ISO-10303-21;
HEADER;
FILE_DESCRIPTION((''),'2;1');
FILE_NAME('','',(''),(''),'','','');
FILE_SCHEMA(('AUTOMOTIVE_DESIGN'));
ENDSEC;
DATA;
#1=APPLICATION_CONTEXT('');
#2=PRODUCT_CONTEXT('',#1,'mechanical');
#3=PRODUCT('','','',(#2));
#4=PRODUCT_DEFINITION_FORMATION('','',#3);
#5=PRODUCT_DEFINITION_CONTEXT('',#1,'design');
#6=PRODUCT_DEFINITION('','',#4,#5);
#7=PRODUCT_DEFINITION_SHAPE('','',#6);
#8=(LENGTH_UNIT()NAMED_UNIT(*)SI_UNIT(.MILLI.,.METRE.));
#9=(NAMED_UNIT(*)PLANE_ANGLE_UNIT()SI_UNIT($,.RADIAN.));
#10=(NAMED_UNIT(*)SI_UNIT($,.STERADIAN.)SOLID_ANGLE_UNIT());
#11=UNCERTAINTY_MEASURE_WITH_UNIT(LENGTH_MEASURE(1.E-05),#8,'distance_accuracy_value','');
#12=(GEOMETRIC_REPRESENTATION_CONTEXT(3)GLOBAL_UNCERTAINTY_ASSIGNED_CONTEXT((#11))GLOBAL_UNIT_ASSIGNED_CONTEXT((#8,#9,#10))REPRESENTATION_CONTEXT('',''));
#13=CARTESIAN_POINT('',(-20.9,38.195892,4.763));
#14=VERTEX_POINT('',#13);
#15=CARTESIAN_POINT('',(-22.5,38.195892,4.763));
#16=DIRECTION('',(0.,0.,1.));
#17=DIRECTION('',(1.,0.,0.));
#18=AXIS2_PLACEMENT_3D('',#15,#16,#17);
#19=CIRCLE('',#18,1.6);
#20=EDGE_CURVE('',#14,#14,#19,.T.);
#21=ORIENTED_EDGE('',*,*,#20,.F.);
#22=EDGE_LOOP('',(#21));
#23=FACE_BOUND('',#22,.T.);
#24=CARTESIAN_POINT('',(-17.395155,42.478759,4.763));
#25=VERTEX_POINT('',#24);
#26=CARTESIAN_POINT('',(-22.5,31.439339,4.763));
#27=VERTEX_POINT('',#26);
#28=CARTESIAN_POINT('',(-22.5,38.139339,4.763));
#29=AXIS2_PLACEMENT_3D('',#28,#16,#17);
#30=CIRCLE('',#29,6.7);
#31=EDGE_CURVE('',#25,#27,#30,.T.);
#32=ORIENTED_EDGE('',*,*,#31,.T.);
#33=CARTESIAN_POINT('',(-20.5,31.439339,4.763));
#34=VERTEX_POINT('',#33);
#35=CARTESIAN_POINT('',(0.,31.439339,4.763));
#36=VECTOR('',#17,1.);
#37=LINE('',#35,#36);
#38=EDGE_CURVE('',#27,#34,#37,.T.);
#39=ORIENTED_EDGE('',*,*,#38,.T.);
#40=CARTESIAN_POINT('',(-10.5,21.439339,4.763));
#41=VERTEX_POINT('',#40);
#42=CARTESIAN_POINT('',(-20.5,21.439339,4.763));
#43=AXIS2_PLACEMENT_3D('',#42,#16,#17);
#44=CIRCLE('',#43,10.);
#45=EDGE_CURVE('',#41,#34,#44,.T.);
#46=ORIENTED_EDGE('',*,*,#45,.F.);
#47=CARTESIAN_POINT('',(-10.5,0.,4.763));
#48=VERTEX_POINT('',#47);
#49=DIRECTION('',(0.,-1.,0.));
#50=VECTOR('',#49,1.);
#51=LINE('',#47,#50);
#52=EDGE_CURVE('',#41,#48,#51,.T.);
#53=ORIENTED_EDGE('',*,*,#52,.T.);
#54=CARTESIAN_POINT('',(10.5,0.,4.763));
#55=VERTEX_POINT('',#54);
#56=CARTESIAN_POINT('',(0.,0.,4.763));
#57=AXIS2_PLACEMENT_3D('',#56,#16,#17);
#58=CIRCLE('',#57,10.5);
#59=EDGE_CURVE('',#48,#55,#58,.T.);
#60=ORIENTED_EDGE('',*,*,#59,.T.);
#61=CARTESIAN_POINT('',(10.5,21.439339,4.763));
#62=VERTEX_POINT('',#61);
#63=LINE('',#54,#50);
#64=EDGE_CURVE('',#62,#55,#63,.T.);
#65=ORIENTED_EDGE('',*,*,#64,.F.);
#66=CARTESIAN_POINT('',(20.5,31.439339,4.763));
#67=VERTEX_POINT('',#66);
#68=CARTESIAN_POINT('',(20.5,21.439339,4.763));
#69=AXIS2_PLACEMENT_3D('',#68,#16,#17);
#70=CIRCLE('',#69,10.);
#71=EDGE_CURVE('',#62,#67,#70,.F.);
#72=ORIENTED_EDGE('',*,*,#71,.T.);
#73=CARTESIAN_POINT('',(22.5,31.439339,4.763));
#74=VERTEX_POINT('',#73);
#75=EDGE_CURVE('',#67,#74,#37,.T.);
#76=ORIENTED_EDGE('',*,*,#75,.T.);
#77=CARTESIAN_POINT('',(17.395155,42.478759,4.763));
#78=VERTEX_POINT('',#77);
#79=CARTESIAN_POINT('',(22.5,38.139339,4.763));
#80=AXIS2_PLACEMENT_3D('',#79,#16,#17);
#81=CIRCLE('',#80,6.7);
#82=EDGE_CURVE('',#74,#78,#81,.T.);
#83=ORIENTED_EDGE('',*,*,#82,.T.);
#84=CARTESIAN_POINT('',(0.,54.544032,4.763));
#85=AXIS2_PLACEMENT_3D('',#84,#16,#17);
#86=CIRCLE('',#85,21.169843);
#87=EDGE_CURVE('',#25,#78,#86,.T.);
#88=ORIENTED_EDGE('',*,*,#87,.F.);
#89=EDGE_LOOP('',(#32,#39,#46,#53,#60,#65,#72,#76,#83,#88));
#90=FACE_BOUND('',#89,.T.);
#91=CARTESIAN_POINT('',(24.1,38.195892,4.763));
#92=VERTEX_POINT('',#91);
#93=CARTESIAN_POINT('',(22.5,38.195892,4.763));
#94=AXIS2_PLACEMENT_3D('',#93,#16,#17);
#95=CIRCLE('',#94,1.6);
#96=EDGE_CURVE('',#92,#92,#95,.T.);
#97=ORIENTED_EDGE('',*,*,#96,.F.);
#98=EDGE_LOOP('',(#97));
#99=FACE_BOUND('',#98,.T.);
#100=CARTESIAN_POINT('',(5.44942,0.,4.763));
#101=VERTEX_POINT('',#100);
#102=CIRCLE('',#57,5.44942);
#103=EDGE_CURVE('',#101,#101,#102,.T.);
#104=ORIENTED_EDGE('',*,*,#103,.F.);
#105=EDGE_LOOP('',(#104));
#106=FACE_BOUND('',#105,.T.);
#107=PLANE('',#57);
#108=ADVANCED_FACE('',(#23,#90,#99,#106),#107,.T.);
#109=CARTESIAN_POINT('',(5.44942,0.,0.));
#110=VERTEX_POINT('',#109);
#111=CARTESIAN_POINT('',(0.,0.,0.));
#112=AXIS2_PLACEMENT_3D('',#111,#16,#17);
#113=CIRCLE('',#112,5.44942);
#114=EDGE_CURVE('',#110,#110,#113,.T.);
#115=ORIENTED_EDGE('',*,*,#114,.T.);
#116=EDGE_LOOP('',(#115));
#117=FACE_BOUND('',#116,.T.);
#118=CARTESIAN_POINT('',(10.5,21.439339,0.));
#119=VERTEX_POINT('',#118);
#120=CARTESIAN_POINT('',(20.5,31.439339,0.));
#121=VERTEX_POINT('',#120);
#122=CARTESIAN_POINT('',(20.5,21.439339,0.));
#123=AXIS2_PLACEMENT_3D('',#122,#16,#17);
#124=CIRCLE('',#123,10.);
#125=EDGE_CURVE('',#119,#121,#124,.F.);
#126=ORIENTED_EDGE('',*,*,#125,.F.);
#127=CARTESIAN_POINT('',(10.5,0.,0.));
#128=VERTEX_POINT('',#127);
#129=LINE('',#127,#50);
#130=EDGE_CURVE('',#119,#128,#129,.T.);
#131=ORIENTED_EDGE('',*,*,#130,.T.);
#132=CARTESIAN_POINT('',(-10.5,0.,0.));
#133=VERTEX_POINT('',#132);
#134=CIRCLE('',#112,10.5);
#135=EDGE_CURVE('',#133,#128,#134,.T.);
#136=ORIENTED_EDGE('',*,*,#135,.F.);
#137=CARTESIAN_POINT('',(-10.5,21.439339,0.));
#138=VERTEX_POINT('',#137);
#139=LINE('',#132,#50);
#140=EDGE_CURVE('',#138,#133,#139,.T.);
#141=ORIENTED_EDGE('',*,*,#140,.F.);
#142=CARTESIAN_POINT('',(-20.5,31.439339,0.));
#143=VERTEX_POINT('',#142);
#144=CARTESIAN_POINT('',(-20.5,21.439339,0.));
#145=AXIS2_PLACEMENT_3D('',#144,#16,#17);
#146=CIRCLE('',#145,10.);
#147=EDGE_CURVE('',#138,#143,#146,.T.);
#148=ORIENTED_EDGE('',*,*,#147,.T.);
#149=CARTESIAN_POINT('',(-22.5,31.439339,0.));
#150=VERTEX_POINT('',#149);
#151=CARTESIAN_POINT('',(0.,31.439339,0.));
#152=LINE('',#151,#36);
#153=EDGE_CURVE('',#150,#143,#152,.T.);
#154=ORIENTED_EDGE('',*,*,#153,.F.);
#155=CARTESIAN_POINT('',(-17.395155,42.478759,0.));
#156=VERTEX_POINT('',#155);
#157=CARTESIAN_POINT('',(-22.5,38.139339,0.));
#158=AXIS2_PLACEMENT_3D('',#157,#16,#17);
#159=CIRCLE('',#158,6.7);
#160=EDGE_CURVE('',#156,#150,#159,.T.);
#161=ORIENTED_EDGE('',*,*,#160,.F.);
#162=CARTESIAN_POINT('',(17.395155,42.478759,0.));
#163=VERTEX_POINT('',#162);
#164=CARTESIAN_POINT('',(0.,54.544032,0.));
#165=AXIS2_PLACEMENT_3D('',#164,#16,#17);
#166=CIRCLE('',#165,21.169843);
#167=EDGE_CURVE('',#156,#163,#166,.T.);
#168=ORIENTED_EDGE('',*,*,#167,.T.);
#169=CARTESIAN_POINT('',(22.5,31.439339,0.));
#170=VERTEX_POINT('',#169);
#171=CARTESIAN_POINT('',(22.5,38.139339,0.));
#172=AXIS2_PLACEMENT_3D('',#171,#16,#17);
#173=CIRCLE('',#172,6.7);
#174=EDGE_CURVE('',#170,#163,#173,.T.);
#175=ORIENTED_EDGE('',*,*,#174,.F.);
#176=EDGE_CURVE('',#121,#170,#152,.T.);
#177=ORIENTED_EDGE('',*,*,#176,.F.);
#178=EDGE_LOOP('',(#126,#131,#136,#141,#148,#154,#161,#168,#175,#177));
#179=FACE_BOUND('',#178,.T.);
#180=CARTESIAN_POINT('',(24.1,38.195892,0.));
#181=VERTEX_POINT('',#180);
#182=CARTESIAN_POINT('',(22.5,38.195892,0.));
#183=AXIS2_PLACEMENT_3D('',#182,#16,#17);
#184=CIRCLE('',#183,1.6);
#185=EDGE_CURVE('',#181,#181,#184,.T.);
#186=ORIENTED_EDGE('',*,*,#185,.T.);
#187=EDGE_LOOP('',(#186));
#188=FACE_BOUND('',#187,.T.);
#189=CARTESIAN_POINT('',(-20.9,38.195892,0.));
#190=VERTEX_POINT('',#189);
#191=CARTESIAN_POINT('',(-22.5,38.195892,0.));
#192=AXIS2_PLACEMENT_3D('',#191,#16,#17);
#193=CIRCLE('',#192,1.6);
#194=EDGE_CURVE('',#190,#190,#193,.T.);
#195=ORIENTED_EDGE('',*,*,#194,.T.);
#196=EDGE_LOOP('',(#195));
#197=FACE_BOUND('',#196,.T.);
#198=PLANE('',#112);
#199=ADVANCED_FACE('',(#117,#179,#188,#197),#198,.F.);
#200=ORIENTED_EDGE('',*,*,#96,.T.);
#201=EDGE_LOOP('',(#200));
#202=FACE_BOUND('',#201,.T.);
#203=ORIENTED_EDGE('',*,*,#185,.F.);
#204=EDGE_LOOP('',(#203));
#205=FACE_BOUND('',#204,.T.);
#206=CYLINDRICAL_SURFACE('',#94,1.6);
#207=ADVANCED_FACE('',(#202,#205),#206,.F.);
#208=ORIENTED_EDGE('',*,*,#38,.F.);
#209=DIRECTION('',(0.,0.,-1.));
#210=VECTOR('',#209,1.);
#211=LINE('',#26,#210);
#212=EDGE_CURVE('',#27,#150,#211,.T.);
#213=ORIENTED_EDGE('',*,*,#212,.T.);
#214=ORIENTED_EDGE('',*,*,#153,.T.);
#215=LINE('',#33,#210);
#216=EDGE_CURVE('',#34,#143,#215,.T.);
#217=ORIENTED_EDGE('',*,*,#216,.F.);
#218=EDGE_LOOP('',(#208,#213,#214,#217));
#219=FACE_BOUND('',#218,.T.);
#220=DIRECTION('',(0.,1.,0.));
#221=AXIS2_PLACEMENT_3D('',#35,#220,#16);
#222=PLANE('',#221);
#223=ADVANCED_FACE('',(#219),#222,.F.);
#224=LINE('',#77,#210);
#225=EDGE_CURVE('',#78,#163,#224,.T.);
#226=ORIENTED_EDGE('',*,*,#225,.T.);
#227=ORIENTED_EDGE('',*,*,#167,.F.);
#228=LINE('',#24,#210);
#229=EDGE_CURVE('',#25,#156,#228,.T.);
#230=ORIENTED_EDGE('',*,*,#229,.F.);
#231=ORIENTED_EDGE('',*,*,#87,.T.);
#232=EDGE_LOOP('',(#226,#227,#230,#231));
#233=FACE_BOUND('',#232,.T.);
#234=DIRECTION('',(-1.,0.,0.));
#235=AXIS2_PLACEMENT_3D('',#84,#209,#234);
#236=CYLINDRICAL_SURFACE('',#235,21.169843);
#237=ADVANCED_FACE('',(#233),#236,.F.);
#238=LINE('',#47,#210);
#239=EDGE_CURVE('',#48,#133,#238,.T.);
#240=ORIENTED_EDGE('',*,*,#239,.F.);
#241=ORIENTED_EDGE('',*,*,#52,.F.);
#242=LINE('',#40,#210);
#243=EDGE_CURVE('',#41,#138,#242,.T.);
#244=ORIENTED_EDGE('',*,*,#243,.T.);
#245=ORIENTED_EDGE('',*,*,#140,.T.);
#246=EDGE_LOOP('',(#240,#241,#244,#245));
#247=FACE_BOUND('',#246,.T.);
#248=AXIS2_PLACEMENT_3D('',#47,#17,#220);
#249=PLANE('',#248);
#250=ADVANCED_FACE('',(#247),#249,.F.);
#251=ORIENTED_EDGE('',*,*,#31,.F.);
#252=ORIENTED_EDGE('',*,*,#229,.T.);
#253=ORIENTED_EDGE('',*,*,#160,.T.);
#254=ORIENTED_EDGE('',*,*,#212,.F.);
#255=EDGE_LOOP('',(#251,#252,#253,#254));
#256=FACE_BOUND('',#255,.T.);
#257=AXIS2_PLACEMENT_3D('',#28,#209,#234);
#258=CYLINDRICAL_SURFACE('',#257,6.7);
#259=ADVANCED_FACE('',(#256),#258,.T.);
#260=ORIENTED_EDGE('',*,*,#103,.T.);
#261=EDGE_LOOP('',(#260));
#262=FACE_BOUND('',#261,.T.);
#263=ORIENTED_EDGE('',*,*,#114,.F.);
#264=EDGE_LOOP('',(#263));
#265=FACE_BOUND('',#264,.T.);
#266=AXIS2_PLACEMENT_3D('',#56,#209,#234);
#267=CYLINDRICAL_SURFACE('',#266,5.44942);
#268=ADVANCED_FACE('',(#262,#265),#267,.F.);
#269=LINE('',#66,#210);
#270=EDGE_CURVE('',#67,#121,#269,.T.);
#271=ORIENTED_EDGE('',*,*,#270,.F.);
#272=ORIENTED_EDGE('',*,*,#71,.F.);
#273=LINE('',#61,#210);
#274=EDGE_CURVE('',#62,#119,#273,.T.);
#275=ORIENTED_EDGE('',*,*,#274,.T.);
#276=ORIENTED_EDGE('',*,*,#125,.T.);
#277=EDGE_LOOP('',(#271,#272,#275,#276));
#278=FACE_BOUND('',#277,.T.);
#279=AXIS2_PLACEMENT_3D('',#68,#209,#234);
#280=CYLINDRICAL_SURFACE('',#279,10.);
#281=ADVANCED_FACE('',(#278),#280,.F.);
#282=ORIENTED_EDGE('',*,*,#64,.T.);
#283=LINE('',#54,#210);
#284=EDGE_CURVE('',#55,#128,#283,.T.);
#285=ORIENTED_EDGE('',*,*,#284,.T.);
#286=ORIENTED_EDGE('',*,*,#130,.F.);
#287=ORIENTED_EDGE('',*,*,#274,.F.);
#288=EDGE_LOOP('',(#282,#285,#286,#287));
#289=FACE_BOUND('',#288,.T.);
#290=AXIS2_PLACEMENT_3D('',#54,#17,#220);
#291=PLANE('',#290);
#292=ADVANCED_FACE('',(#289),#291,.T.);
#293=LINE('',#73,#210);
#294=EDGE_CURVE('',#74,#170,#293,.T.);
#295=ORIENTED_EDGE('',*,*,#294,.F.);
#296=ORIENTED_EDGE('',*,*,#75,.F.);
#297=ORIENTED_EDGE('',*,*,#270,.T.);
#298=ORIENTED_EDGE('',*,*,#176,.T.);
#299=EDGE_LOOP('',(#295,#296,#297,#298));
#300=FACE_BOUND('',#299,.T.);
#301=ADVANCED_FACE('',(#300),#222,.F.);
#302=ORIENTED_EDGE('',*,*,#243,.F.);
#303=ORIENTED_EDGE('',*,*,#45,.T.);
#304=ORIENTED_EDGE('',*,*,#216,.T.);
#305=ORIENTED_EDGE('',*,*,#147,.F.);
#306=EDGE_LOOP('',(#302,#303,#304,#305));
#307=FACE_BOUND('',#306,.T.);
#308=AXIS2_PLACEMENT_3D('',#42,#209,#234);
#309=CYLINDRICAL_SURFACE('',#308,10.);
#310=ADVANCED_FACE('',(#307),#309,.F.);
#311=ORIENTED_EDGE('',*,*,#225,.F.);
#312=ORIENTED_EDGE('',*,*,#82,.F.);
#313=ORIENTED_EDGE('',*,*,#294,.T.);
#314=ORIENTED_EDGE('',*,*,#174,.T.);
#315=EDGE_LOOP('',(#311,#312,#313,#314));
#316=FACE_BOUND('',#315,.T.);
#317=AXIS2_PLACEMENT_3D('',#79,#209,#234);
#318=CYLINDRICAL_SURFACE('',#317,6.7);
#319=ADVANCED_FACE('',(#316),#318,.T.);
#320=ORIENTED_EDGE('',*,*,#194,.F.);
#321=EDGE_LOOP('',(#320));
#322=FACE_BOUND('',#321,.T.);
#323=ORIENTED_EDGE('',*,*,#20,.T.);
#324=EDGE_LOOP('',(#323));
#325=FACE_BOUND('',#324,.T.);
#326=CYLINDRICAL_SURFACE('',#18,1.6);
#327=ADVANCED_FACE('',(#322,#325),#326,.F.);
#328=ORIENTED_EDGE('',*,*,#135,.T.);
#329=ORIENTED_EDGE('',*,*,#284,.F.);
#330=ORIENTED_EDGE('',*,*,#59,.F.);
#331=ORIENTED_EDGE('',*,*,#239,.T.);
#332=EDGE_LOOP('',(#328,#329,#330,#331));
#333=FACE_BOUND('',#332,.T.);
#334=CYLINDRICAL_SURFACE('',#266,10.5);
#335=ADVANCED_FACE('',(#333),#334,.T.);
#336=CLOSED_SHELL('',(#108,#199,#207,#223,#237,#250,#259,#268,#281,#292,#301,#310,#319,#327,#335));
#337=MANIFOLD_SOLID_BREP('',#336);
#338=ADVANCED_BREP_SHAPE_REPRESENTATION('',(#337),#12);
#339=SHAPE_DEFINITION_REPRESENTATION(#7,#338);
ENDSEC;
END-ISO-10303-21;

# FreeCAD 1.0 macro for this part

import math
import FreeCAD as App
import Part
import Sketcher
from FreeCAD import Vector

doc = App.newDocument("Part")
body = doc.addObject("PartDesign::Body", "Body")

# Sketch on XY plane
sketch1 = body.newObject("Sketcher::SketchObject", "Sketch")
sketch1.AttachmentSupport = (doc.getObject("XY_Plane"), [""])
sketch1.MapMode = "FlatFace"
sketch1.addGeometry(Part.ArcOfCircle(Part.Circle(Vector(20.5, 21.4, 0), Vector(0, 0, 1), 10), math.radians(90), math.radians(180)), False)
sketch1.addGeometry(Part.LineSegment(Vector(20.5, 31.4, 0), Vector(22.5, 31.4, 0)), False)
sketch1.addGeometry(Part.ArcOfCircle(Part.Circle(Vector(22.5, 38.1, 0), Vector(0, 0, 1), 6.7), math.radians(-90), math.radians(140)), False)
sketch1.addGeometry(Part.ArcOfCircle(Part.Circle(Vector(0, 54.5, 0), Vector(0, 0, 1), 21.2), math.radians(-37.45), math.radians(-34.75)), False)
sketch1.addGeometry(Part.ArcOfCircle(Part.Circle(Vector(0, 54.5, 0), Vector(0, 0, 1), 21.2), math.radians(-143), math.radians(-37)), False)
sketch1.addGeometry(Part.ArcOfCircle(Part.Circle(Vector(0, 54.5, 0), Vector(0, 0, 1), 21.2), math.radians(-145.25), math.radians(-142.55)), False)
sketch1.addGeometry(Part.ArcOfCircle(Part.Circle(Vector(-22.5, 38.1, 0), Vector(0, 0, 1), 6.7), math.radians(40), math.radians(270)), False)
sketch1.addGeometry(Part.LineSegment(Vector(-22.5, 31.4, 0), Vector(-20.5, 31.4, 0)), False)
sketch1.addGeometry(Part.ArcOfCircle(Part.Circle(Vector(-20.5, 21.4, 0), Vector(0, 0, 1), 10), math.radians(0), math.radians(90)), False)
sketch1.addGeometry(Part.LineSegment(Vector(-10.5, 21.4, 0), Vector(-10.5, 0, 0)), False)
sketch1.addGeometry(Part.ArcOfCircle(Part.Circle(Vector(0, 0, 0), Vector(0, 0, 1), 10.5), math.radians(180), math.radians(360)), False)
sketch1.addGeometry(Part.LineSegment(Vector(10.5, 0, 0), Vector(10.5, 21.4, 0)), False)
sketch1.addGeometry(Part.Circle(Vector(0, 0, 0), Vector(0, 0, 1), 5.4), False)
sketch1.addConstraint(Sketcher.Constraint("Tangent", 0, 1, 1, 1))
sketch1.addConstraint(Sketcher.Constraint("Tangent", 1, 2, 2, 1))
sketch1.addConstraint(Sketcher.Constraint("Coincident", 2, 2, 3, 2))
sketch1.addConstraint(Sketcher.Constraint("Tangent", 3, 1, 4, 2))
sketch1.addConstraint(Sketcher.Constraint("Tangent", 4, 1, 5, 2))
sketch1.addConstraint(Sketcher.Constraint("Coincident", 5, 1, 6, 1))
sketch1.addConstraint(Sketcher.Constraint("Tangent", 6, 2, 7, 1))
sketch1.addConstraint(Sketcher.Constraint("Tangent", 7, 2, 8, 2))
sketch1.addConstraint(Sketcher.Constraint("Tangent", 8, 1, 9, 1))
sketch1.addConstraint(Sketcher.Constraint("Tangent", 9, 2, 10, 1))
sketch1.addConstraint(Sketcher.Constraint("Tangent", 10, 2, 11, 1))
sketch1.addConstraint(Sketcher.Constraint("Tangent", 11, 2, 0, 2))
sketch1.addConstraint(Sketcher.Constraint("Horizontal", 1))
sketch1.addConstraint(Sketcher.Constraint("Horizontal", 7))
sketch1.addConstraint(Sketcher.Constraint("Vertical", 9))
sketch1.addConstraint(Sketcher.Constraint("Vertical", 11))
sketch1.addConstraint(Sketcher.Constraint("Coincident", 10, 3, -1, 1))
sketch1.addConstraint(Sketcher.Constraint("Coincident", 12, 3, -1, 1))
sketch1.addConstraint(Sketcher.Constraint("Coincident", 5, 3, 3, 3))
sketch1.addConstraint(Sketcher.Constraint("Equal", 2, 6))
sketch1.addConstraint(Sketcher.Constraint("Equal", 0, 8))
sketch1.addConstraint(Sketcher.Constraint("Symmetric", 2, 3, 6, 3, -2))
sketch1.addConstraint(Sketcher.Constraint("Symmetric", 3, 1, 4, 1, -2))
sketch1.addConstraint(Sketcher.Constraint("Radius", 0, 10.0))
sketch1.addConstraint(Sketcher.Constraint("Radius", 2, 6.7))
sketch1.addConstraint(Sketcher.Constraint("Radius", 10, 10.5))
sketch1.addConstraint(Sketcher.Constraint("DistanceX", 1, 1, 1, 2, 2.0))
sketch1.addConstraint(Sketcher.Constraint("Diameter", 12, 10.89884))
sketch1.addConstraint(Sketcher.Constraint("Radius", 3, 21.169842))
sketch1.addConstraint(Sketcher.Constraint("DistanceY", 9, 2, 9, 1, 21.439339))
sketch1.addConstraint(Sketcher.Constraint("DistanceX", 3, 1, 2, 2, 0.587902))
sketch1.addConstraint(Sketcher.Constraint("DistanceY", -1, 1, 3, 3, 54.544032))
pad1 = body.newObject("PartDesign::Pad", "Pad")
pad1.Profile = sketch1
pad1.Length = 4.763

# Sketch on XY plane
sketch2 = body.newObject("Sketcher::SketchObject", "Sketch001")
sketch2.AttachmentSupport = (doc.getObject("XY_Plane"), [""])
sketch2.MapMode = "FlatFace"
sketch2.AttachmentOffset = App.Placement(Vector(0, 0, 4.763), App.Rotation())
sketch2.addGeometry(Part.Circle(Vector(-22.5, 38.2, 0), Vector(0, 0, 1), 1.6), False)
sketch2.addGeometry(Part.Circle(Vector(22.5, 38.2, 0), Vector(0, 0, 1), 1.6), False)
sketch2.addConstraint(Sketcher.Constraint("Equal", 0, 1))
sketch2.addConstraint(Sketcher.Constraint("Symmetric", 0, 3, 1, 3, -2))
sketch2.addConstraint(Sketcher.Constraint("Diameter", 0, 3.2))
sketch2.addConstraint(Sketcher.Constraint("DistanceX", 0, 3, 1, 3, 45.0))
sketch2.addConstraint(Sketcher.Constraint("DistanceY", -1, 1, 0, 3, 38.195892))
doc.recompute()
hole = body.newObject("PartDesign::Hole", "Hole")
hole.Profile = sketch2
hole.ThreadType = "None"
hole.Diameter = 3.2
hole.DepthType = "ThroughAll"

doc.recompute()
